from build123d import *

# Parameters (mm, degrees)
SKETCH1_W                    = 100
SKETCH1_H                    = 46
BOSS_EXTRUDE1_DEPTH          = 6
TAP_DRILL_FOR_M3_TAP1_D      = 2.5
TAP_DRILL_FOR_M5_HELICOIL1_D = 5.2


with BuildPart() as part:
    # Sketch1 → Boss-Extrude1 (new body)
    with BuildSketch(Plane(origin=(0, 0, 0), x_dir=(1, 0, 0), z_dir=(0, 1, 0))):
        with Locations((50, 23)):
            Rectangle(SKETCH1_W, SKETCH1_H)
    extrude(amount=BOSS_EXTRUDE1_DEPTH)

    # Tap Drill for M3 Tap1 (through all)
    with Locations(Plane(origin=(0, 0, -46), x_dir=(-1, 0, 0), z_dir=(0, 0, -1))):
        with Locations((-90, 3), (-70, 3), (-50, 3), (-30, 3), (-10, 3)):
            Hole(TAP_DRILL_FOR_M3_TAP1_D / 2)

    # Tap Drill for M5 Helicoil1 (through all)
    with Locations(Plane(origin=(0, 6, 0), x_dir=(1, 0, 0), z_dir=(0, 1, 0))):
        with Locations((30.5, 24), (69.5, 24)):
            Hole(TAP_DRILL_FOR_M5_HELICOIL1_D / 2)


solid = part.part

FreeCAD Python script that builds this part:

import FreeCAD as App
import Part
import Sketcher
Q = App.Units.Quantity


def add_polygon(sketch, points):
    """Adds a closed chain of lines whose ends are joined by coincident constraints."""
    first, n = sketch.GeometryCount, len(points)
    for a, b in zip(points, points[1:] + points[:1]):
        sketch.addGeometry(Part.LineSegment(App.Vector(*a, 0), App.Vector(*b, 0)), False)
    for i in range(n):
        sketch.addConstraint(Sketcher.Constraint("Coincident", first + i, 2, first + (i + 1) % n, 1))

doc = App.newDocument("Part")
params = doc.addObject("Spreadsheet::Sheet", "Params")
for row, (alias, value) in enumerate([
    ("sketch1_width", "100 mm"),
    ("sketch1_height", "46 mm"),
    ("pad1_length", "6 mm"),
    ("sketch2_diameter", "2.5 mm"),
    ("hole_diameter", "2.5 mm"),
    ("sketch3_diameter", "5.2 mm"),
    ("hole2_diameter", "5.2 mm"),
], start=1):
    params.set(f"A{row}", alias)
    params.set(f"B{row}", "=" + value)
    params.setAlias(f"B{row}", alias)

body = doc.addObject("PartDesign::Body", "Body")

sketch1 = body.newObject("Sketcher::SketchObject", "Sketch")
sketch1.AttachmentSupport = (doc.getObject("XZ_Plane"), [""])
sketch1.MapMode = "FlatFace"
add_polygon(sketch1, [(0, -46), (0, 0), (100, 0), (100, -46)])
sketch1.addConstraint([
    Sketcher.Constraint("Vertical", 0),
    Sketcher.Constraint("Horizontal", 1),
    Sketcher.Constraint("Vertical", 2),
    Sketcher.Constraint("Horizontal", 3),
    Sketcher.Constraint("Coincident", 0, 2, -1, 1),
    Sketcher.Constraint("DistanceX", 1, 1, 1, 2, Q("100 mm")),
    Sketcher.Constraint("DistanceY", 0, 1, 0, 2, Q("46 mm")),
])
sketch1.setExpression("Constraints[9]", "Params.sketch1_width")
sketch1.setExpression("Constraints[10]", "Params.sketch1_height")
pad1 = body.newObject("PartDesign::Pad", "Pad")
pad1.Profile = sketch1
pad1.setExpression("Length", "Params.pad1_length")
pad1.Reversed = True

sketch2 = body.newObject("Sketcher::SketchObject", "Sketch001")
sketch2.AttachmentSupport = (doc.getObject("XY_Plane"), [""])
sketch2.MapMode = "FlatFace"
sketch2.AttachmentOffset = App.Placement(App.Vector(0, 0, -46), App.Rotation())
sketch2.addGeometry([
    Part.Circle(App.Vector(90, 3, 0), App.Vector(0, 0, 1), 1.25),
    Part.Circle(App.Vector(70, 3, 0), App.Vector(0, 0, 1), 1.25),
    Part.Circle(App.Vector(50, 3, 0), App.Vector(0, 0, 1), 1.25),
    Part.Circle(App.Vector(30, 3, 0), App.Vector(0, 0, 1), 1.25),
    Part.Circle(App.Vector(10, 3, 0), App.Vector(0, 0, 1), 1.25),
], False)
sketch2.addConstraint([
    Sketcher.Constraint("Equal", 0, 1),
    Sketcher.Constraint("Equal", 1, 2),
    Sketcher.Constraint("Equal", 2, 3),
    Sketcher.Constraint("Equal", 3, 4),
    Sketcher.Constraint("Horizontal", 0, 3, 1, 3),
    Sketcher.Constraint("Horizontal", 1, 3, 2, 3),
    Sketcher.Constraint("Horizontal", 2, 3, 3, 3),
    Sketcher.Constraint("Horizontal", 3, 3, 4, 3),
    Sketcher.Constraint("Diameter", 0, Q("2.5 mm")),
    Sketcher.Constraint("DistanceX", -1, 1, 0, 3, Q("90 mm")),
    Sketcher.Constraint("DistanceY", -1, 1, 0, 3, Q("3 mm")),
    Sketcher.Constraint("DistanceX", -1, 1, 1, 3, Q("70 mm")),
    Sketcher.Constraint("DistanceX", -1, 1, 2, 3, Q("50 mm")),
    Sketcher.Constraint("DistanceX", -1, 1, 3, 3, Q("30 mm")),
    Sketcher.Constraint("DistanceX", -1, 1, 4, 3, Q("10 mm")),
])
sketch2.setExpression("Constraints[8]", "Params.sketch2_diameter")
doc.recompute()
hole = body.newObject("PartDesign::Hole", "Hole")
hole.Profile = sketch2
hole.ThreadType = "None"
hole.setExpression("Diameter", "Params.hole_diameter")
hole.DepthType = "ThroughAll"
hole.Reversed = True

sketch3 = body.newObject("Sketcher::SketchObject", "Sketch002")
sketch3.AttachmentSupport = (doc.getObject("XZ_Plane"), [""])
sketch3.MapMode = "FlatFace"
sketch3.AttachmentOffset = App.Placement(App.Vector(0, 0, -6), App.Rotation())
sketch3.addGeometry([
    Part.Circle(App.Vector(30.5, -24, 0), App.Vector(0, 0, 1), 2.6),
    Part.Circle(App.Vector(69.5, -24, 0), App.Vector(0, 0, 1), 2.6),
], False)
sketch3.addConstraint([
    Sketcher.Constraint("Equal", 0, 1),
    Sketcher.Constraint("Horizontal", 0, 3, 1, 3),
    Sketcher.Constraint("Diameter", 0, Q("5.2 mm")),
    Sketcher.Constraint("DistanceY", 0, 3, -1, 1, Q("24 mm")),
    Sketcher.Constraint("DistanceX", 0, 3, 1, 3, Q("39 mm")),
    Sketcher.Constraint("DistanceX", -1, 1, 0, 3, Q("30.5 mm")),
])
sketch3.setExpression("Constraints[2]", "Params.sketch3_diameter")
doc.recompute()
hole2 = body.newObject("PartDesign::Hole", "Hole001")
hole2.Profile = sketch3
hole2.ThreadType = "None"
hole2.setExpression("Diameter", "Params.hole2_diameter")
hole2.DepthType = "ThroughAll"
hole2.Reversed = True

doc.recompute()
